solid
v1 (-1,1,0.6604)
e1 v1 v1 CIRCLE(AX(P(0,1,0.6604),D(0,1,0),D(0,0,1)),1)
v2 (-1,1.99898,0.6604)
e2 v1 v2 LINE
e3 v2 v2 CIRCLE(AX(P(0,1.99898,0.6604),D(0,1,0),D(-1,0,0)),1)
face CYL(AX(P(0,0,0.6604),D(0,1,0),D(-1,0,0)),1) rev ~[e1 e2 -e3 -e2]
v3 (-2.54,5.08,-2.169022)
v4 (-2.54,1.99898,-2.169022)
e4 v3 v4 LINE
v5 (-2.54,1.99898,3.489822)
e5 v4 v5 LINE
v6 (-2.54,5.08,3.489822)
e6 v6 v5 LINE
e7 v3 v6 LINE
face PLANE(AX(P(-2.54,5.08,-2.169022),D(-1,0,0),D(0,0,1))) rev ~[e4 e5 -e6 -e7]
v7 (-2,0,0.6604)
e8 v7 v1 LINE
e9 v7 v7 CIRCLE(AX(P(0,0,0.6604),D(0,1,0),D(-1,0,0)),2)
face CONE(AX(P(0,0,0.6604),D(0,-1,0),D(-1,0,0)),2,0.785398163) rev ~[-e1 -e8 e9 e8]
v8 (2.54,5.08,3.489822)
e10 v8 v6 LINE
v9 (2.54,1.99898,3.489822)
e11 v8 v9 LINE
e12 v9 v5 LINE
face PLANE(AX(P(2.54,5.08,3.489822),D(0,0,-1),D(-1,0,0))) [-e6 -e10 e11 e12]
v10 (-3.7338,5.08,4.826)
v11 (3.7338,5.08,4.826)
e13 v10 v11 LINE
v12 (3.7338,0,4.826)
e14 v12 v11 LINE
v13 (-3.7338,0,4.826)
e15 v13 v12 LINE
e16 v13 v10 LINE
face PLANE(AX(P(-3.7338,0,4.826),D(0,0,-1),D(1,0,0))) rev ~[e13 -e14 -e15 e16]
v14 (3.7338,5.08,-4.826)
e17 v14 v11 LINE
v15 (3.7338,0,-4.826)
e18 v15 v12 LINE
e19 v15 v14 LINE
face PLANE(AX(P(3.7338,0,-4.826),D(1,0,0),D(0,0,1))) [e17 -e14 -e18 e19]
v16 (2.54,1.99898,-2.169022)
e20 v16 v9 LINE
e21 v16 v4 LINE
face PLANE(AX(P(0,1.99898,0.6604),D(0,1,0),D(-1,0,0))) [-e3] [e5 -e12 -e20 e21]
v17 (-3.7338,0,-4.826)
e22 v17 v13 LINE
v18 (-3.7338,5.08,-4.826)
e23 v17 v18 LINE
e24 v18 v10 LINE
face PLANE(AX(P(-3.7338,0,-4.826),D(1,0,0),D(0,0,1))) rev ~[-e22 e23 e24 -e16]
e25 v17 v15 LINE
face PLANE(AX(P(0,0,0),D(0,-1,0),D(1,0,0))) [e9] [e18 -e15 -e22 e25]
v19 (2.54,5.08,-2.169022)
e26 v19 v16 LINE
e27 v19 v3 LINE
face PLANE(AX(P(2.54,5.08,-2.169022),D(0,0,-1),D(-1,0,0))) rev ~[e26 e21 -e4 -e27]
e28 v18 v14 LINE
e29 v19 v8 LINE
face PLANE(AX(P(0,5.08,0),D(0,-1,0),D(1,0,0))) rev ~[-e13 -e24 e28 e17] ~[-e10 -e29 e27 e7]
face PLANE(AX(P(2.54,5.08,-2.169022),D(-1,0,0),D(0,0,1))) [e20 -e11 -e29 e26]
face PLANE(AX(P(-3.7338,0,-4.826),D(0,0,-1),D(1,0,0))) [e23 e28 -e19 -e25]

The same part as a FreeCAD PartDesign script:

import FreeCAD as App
import Part
import Sketcher

V = App.Vector
Q = App.Units.Quantity


def add_polygon(sketch, points):
    """Adds a closed chain of lines whose ends are joined by coincident constraints."""
    first, n = sketch.GeometryCount, len(points)
    for a, b in zip(points, points[1:] + points[:1]):
        sketch.addGeometry(Part.LineSegment(App.Vector(*a, 0), App.Vector(*b, 0)), False)
    for i in range(n):
        sketch.addConstraint(Sketcher.Constraint("Coincident", first + i, 2, first + (i + 1) % n, 1))

doc = App.newDocument("Part")
params = doc.addObject("Spreadsheet::Sheet", "Params")
for row, (alias, value) in enumerate([
    ("sketch1_height", "0.38 in"),
    ("sketch1_width", "0.294 in"),
    ("pad1_length", "0.2 in"),
    ("hole_diameter", "2 mm"),
    ("hole_csink_diameter", "4 mm"),
    ("sketch3_width", "0.2 in"),
    ("pocket1_length", "0.1213 in"),
], start=1):
    params.set(f"A{row}", alias)
    params.set(f"B{row}", "=" + value)
    params.setAlias(f"B{row}", alias)

body = doc.addObject("PartDesign::Body", "Body")

# Sketch on XZ plane
sketch1 = doc.addObject("Sketcher::SketchObject", "Sketch")
body.addObject(sketch1)
sketch1.AttachmentSupport = (doc.XZ_Plane, [""])
sketch1.MapMode = "FlatFace"
add_polygon(sketch1, [(-4, 5), (-4, -5), (4, -5), (4, 5)])  # lines 0-3
sketch1.addConstraint([
    Sketcher.Constraint("Vertical", 0),
    Sketcher.Constraint("Horizontal", 1),
    Sketcher.Constraint("Vertical", 2),
    Sketcher.Constraint("Horizontal", 3),
    Sketcher.Constraint("Symmetric", 0, 2, 2, 2, -1, 1),
    Sketcher.Constraint("DistanceY", 0, 2, 0, 1, Q("0.38 in")),
    Sketcher.Constraint("DistanceX", 1, 1, 1, 2, Q("0.294 in")),
])
sketch1.setExpression("Constraints[9]", "Params.sketch1_height")
sketch1.setExpression("Constraints[10]", "Params.sketch1_width")
pad1 = doc.addObject("PartDesign::Pad", "Pad")
body.addObject(pad1)
pad1.Profile = sketch1
pad1.setExpression("Length", "Params.pad1_length")
pad1.Reversed = True

# Sketch on XZ plane
sketch2 = doc.addObject("Sketcher::SketchObject", "Sketch001")
body.addObject(sketch2)
sketch2.AttachmentSupport = (doc.XZ_Plane, [""])
sketch2.MapMode = "FlatFace"
sketch2.addGeometry(Part.Circle(V(0, 0.7, 0), V(0, 0, 1), 1), False)
sketch2.addConstraint([
    Sketcher.Constraint("PointOnObject", 0, 3, -2),
    Sketcher.Constraint("Diameter", 0, 2.0),
    Sketcher.Constraint("DistanceY", -1, 1, 0, 3, Q("0.026 in")),
])
doc.recompute()
hole = doc.addObject("PartDesign::Hole", "Hole")
body.addObject(hole)
hole.Profile = sketch2
hole.ThreadType = "None"
hole.setExpression("Diameter", "Params.hole_diameter")
hole.DepthType = "ThroughAll"
hole.HoleCutType = "Countersink"
hole.setExpression("HoleCutDiameter", "Params.hole_csink_diameter")
hole.HoleCutCountersinkAngle = 90

# Sketch on XZ plane
sketch3 = doc.addObject("Sketcher::SketchObject", "Sketch002")
body.addObject(sketch3)
sketch3.AttachmentSupport = (doc.XZ_Plane, [""])
sketch3.MapMode = "FlatFace"
sketch3.AttachmentOffset = App.Placement(V(0, 0, -0.2 * 25.4), App.Rotation())
add_polygon(sketch3, [(2.5, 3.5), (2.5, -2.2), (-2.5, -2.2), (-2.5, 3.5)])  # lines 0-3
sketch3.addGeometry(Part.Circle(V(0, 0.7, 0), V(0, 0, 1), 1), False)  # 4
sketch3.addConstraint([
    Sketcher.Constraint("Vertical", 0),
    Sketcher.Constraint("Horizontal", 1),
    Sketcher.Constraint("Vertical", 2),
    Sketcher.Constraint("Horizontal", 3),
    Sketcher.Constraint("PointOnObject", 4, 3, -2),
    Sketcher.Constraint("DistanceX", 1, 2, 1, 1, Q("0.2 in")),
    Sketcher.Constraint("DistanceX", -1, 1, 0, 2, Q("0.1 in")),
    Sketcher.Constraint("Diameter", 4, 2.0),
    Sketcher.Constraint("DistanceY", -1, 1, 4, 3, Q("0.026 in")),
    Sketcher.Constraint("DistanceY", 0, 2, 0, 1, 5.658844),
    Sketcher.Constraint("DistanceY", 0, 2, -1, 1, 2.169022),
])
sketch3.setExpression("Constraints[9]", "Params.sketch3_width")
pocket1 = doc.addObject("PartDesign::Pocket", "Pocket")
body.addObject(pocket1)
pocket1.Profile = sketch3
pocket1.setExpression("Length", "Params.pocket1_length")
pocket1.Reversed = True

doc.recompute()
